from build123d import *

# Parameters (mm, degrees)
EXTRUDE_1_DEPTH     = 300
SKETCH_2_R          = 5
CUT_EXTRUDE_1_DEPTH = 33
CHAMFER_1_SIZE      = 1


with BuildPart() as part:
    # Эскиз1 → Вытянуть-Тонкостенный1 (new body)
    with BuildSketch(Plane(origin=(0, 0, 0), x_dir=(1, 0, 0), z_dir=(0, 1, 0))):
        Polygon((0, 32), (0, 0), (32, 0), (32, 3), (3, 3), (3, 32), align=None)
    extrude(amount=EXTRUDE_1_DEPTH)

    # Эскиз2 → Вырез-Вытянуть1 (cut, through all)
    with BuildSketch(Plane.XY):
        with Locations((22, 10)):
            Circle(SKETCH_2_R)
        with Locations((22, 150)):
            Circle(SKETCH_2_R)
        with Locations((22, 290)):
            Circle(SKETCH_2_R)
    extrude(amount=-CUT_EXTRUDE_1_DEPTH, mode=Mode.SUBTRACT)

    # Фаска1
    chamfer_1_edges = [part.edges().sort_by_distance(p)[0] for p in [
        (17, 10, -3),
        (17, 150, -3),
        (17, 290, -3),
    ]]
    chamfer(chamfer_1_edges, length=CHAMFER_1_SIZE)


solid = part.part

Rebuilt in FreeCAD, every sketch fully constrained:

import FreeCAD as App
import Part
import Sketcher

V = App.Vector


def edges_at(feature, points):
    """Names of the edges that pass closest to the given points."""
    edges = feature.Shape.Edges
    near = lambda p: min(range(len(edges)), key=lambda i: edges[i].distToShape(Part.Vertex(*p))[0])
    return sorted({f"Edge{near(p) + 1}" for p in points})


def add_polygon(sketch, points):
    """Adds a closed chain of lines whose ends are joined by coincident constraints."""
    first, n = sketch.GeometryCount, len(points)
    for a, b in zip(points, points[1:] + points[:1]):
        sketch.addGeometry(Part.LineSegment(App.Vector(*a, 0), App.Vector(*b, 0)), False)
    for i in range(n):
        sketch.addConstraint(Sketcher.Constraint("Coincident", first + i, 2, first + (i + 1) % n, 1))

doc = App.newDocument("Part")
params = doc.addObject("Spreadsheet::Sheet", "Params")
for row, (alias, value) in enumerate([
    ("sketch1_width", "32 mm"),
    ("sketch1_width2", "29 mm"),
    ("pad1_length", "300 mm"),
    ("sketch2_diameter", "10 mm"),
    ("chamfer_size", "1 mm"),
], start=1):
    params.set(f"A{row}", alias)
    params.set(f"B{row}", "=" + value)
    params.setAlias(f"B{row}", alias)

body = doc.addObject("PartDesign::Body", "Body")

# Sketch on XZ plane
sketch1 = body.newObject("Sketcher::SketchObject", "Sketch")
sketch1.AttachmentSupport = (doc.getObject("XZ_Plane"), [""])
sketch1.MapMode = "FlatFace"
add_polygon(sketch1, [(0, -32), (0, 0), (32, 0), (32, -3), (3, -3), (3, -32)])  # lines 0-5
sketch1.addConstraint([
    Sketcher.Constraint("Vertical", 0),
    Sketcher.Constraint("Horizontal", 1),
    Sketcher.Constraint("Vertical", 2),
    Sketcher.Constraint("Horizontal", 3),
    Sketcher.Constraint("Vertical", 4),
    Sketcher.Constraint("Horizontal", 5),
    Sketcher.Constraint("Coincident", 0, 2, -1, 1),
    Sketcher.Constraint("Equal", 1, 0),
    Sketcher.Constraint("Equal", 5, 2),
    Sketcher.Constraint("DistanceX", 1, 1, 1, 2, 32.0),
    Sketcher.Constraint("DistanceX", 3, 2, 3, 1, 29.0),
])
sketch1.setExpression("Constraints[15]", "Params.sketch1_width")
sketch1.setExpression("Constraints[16]", "Params.sketch1_width2")
pad1 = body.newObject("PartDesign::Pad", "Pad")
pad1.Profile = sketch1
pad1.setExpression("Length", "Params.pad1_length")
pad1.Reversed = True

# Sketch on XY plane
sketch2 = body.newObject("Sketcher::SketchObject", "Sketch001")
sketch2.AttachmentSupport = (doc.getObject("XY_Plane"), [""])
sketch2.MapMode = "FlatFace"
sketch2.addGeometry([
    Part.Circle(V(22, 10, 0), V(0, 0, 1), 5),
    Part.Circle(V(22, 150, 0), V(0, 0, 1), 5),
    Part.Circle(V(22, 290, 0), V(0, 0, 1), 5),
], False)
sketch2.addConstraint([
    Sketcher.Constraint("Equal", 0, 1),
    Sketcher.Constraint("Equal", 1, 2),
    Sketcher.Constraint("Vertical", 0, 3, 1, 3),
    Sketcher.Constraint("Vertical", 1, 3, 2, 3),
    Sketcher.Constraint("Diameter", 0, 10.0),
    Sketcher.Constraint("DistanceX", -1, 1, 0, 3, 22.0),
    Sketcher.Constraint("DistanceY", -1, 1, 0, 3, 10.0),
    Sketcher.Constraint("DistanceY", -1, 1, 1, 3, 150.0),
    Sketcher.Constraint("DistanceY", -1, 1, 2, 3, 290.0),
])
sketch2.setExpression("Constraints[4]", "Params.sketch2_diameter")
pocket1 = body.newObject("PartDesign::Pocket", "Pocket")
pocket1.Profile = sketch2
pocket1.Type = "ThroughAll"
doc.recompute()

chamfer = body.newObject("PartDesign::Chamfer", "Chamfer")
chamfer.Base = (pocket1, edges_at(pocket1, [(17, 10, -3), (17, 150, -3), (17, 290, -3)]))
chamfer.setExpression("Size", "Params.chamfer_size")

doc.recompute()
